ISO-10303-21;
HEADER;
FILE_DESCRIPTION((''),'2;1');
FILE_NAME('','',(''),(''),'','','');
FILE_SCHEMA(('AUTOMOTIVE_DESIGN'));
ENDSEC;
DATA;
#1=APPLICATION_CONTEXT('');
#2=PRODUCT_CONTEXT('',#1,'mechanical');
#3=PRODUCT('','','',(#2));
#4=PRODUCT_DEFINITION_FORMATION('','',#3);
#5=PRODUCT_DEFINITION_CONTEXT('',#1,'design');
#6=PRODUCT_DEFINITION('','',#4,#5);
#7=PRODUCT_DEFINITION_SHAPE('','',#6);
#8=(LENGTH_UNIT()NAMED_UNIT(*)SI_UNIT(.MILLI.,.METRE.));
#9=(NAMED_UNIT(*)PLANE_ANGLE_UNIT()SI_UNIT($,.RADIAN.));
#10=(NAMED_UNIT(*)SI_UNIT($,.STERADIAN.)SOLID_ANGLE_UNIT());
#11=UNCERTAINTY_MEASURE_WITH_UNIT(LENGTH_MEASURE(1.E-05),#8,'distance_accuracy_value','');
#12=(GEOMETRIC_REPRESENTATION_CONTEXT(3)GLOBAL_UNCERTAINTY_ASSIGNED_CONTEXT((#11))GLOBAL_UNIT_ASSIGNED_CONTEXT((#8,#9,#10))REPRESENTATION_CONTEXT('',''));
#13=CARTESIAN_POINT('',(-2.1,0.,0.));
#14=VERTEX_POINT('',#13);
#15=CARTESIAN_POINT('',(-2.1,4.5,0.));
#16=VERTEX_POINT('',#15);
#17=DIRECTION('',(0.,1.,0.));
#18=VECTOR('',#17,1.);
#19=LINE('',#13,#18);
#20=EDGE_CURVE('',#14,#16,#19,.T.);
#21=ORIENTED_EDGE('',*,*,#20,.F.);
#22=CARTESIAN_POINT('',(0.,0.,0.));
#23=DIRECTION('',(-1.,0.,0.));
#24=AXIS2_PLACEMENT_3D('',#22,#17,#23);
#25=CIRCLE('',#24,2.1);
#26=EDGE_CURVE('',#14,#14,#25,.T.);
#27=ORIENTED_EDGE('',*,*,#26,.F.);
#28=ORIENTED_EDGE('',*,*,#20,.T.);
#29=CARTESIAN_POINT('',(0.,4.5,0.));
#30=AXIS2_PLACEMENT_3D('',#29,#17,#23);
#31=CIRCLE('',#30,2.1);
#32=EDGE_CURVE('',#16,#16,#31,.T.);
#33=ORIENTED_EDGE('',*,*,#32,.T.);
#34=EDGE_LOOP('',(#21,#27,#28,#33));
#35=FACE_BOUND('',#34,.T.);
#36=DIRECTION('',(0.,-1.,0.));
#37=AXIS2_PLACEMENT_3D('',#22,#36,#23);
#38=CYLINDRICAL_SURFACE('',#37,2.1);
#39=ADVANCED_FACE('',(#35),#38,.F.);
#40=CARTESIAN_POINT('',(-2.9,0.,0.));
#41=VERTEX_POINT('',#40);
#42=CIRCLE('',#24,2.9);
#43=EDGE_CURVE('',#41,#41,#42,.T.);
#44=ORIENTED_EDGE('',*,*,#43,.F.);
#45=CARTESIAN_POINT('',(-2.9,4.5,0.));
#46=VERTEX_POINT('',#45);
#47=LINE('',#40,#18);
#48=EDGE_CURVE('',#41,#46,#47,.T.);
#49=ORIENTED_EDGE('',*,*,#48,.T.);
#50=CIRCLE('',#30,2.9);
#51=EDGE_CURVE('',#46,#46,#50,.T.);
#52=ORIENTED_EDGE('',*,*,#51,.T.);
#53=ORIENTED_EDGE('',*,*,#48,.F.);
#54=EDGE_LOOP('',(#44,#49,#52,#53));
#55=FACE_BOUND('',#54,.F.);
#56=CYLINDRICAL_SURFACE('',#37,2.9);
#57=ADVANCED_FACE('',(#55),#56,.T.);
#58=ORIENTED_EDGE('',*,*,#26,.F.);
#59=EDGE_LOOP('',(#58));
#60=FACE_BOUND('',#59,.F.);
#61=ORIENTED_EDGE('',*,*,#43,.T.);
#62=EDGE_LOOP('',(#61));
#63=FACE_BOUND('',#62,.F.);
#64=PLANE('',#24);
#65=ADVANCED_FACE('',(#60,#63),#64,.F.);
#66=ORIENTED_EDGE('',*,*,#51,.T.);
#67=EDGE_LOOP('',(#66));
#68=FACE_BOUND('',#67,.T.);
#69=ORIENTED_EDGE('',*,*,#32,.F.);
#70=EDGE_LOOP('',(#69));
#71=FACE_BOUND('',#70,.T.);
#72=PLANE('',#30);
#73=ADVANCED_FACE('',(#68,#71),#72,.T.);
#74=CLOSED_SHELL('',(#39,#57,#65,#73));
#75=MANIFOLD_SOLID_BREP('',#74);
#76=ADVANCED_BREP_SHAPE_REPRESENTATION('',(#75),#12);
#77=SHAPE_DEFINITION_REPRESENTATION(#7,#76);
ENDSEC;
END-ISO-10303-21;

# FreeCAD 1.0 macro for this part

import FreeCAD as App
import Part
import Sketcher
Q = App.Units.Quantity

doc = App.newDocument("Part")
body = doc.addObject("PartDesign::Body", "Body")

sketch1 = body.newObject("Sketcher::SketchObject", "Sketch")
sketch1.AttachmentSupport = (doc.getObject("XZ_Plane"), [""])
sketch1.MapMode = "FlatFace"
sketch1.addGeometry([
    Part.Circle(App.Vector(0, 0, 0), App.Vector(0, 0, 1), 2.9),
    Part.Circle(App.Vector(0, 0, 0), App.Vector(0, 0, 1), 2.1),
], False)
sketch1.addConstraint([
    Sketcher.Constraint("Coincident", 0, 3, -1, 1),
    Sketcher.Constraint("Coincident", 1, 3, -1, 1),
    Sketcher.Constraint("Diameter", 0, Q("5.8 mm")),
    Sketcher.Constraint("Diameter", 1, Q("4.2 mm")),
])
pad1 = body.newObject("PartDesign::Pad", "Pad")
pad1.Profile = sketch1
pad1.Length = 4.5
pad1.Reversed = True

doc.recompute()
